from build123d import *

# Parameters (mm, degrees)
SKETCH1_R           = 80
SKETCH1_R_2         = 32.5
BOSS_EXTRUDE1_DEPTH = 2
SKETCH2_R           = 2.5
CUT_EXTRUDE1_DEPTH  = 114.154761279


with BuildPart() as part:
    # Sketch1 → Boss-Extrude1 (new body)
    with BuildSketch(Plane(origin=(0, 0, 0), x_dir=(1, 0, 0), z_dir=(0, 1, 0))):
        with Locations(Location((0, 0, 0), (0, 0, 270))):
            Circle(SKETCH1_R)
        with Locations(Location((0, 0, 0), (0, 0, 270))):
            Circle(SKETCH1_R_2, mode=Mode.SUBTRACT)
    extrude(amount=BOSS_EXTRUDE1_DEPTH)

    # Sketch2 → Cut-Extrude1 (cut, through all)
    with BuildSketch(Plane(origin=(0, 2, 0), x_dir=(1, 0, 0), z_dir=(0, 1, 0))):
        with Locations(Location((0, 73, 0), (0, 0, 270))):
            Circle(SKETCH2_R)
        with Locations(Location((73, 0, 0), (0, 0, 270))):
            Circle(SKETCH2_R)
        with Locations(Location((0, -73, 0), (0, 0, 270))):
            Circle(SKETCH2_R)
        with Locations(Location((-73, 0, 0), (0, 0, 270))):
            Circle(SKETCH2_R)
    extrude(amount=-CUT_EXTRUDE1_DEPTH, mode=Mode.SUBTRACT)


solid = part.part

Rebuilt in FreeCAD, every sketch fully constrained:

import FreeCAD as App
import Part
import Sketcher

V = App.Vector
Q = App.Units.Quantity

doc = App.newDocument("Part")
body = doc.addObject("PartDesign::Body", "Body")

# Sketch on XZ plane
sketch1 = body.newObject("Sketcher::SketchObject", "Sketch")
sketch1.AttachmentSupport = (doc.getObject("XZ_Plane"), [""])
sketch1.MapMode = "FlatFace"
sketch1.addGeometry([
    Part.Circle(V(0, 0, 0), V(0, 0, 1), 80),
    Part.Circle(V(0, 0, 0), V(0, 0, 1), 32.5),
], False)
sketch1.addConstraint([
    Sketcher.Constraint("Coincident", 0, 3, -1, 1),
    Sketcher.Constraint("Coincident", 1, 3, -1, 1),
    Sketcher.Constraint("Diameter", 0, Q("160 mm")),
    Sketcher.Constraint("Diameter", 1, Q("65 mm")),
])
pad1 = body.newObject("PartDesign::Pad", "Pad")
pad1.Profile = sketch1
pad1.Length = 2
pad1.Reversed = True

# Sketch on XZ plane
sketch2 = body.newObject("Sketcher::SketchObject", "Sketch001")
sketch2.AttachmentSupport = (doc.getObject("XZ_Plane"), [""])
sketch2.MapMode = "FlatFace"
sketch2.AttachmentOffset = App.Placement(V(0, 0, -2), App.Rotation())
sketch2.addGeometry([
    Part.Circle(V(0, -73, 0), V(0, 0, 1), 2.5),
    Part.Circle(V(73, 0, 0), V(0, 0, 1), 2.5),
    Part.Circle(V(0, 73, 0), V(0, 0, 1), 2.5),
    Part.Circle(V(-73, 0, 0), V(0, 0, 1), 2.5),
], False)
sketch2.addConstraint([
    Sketcher.Constraint("Equal", 0, 1),
    Sketcher.Constraint("Equal", 1, 2),
    Sketcher.Constraint("Equal", 2, 3),
    Sketcher.Constraint("Symmetric", 0, 3, 2, 3, -1, 1),
    Sketcher.Constraint("Symmetric", 1, 3, 3, 3, -1, 1),
    Sketcher.Constraint("PointOnObject", 0, 3, -2),
    Sketcher.Constraint("PointOnObject", 1, 3, -1),
    Sketcher.Constraint("Diameter", 0, Q("5 mm")),
    Sketcher.Constraint("DistanceY", 0, 3, -1, 1, Q("73 mm")),
    Sketcher.Constraint("DistanceX", -1, 1, 1, 3, Q("73 mm")),
])
pocket1 = body.newObject("PartDesign::Pocket", "Pocket")
pocket1.Profile = sketch2
pocket1.Type = "ThroughAll"
pocket1.Reversed = True

doc.recompute()
